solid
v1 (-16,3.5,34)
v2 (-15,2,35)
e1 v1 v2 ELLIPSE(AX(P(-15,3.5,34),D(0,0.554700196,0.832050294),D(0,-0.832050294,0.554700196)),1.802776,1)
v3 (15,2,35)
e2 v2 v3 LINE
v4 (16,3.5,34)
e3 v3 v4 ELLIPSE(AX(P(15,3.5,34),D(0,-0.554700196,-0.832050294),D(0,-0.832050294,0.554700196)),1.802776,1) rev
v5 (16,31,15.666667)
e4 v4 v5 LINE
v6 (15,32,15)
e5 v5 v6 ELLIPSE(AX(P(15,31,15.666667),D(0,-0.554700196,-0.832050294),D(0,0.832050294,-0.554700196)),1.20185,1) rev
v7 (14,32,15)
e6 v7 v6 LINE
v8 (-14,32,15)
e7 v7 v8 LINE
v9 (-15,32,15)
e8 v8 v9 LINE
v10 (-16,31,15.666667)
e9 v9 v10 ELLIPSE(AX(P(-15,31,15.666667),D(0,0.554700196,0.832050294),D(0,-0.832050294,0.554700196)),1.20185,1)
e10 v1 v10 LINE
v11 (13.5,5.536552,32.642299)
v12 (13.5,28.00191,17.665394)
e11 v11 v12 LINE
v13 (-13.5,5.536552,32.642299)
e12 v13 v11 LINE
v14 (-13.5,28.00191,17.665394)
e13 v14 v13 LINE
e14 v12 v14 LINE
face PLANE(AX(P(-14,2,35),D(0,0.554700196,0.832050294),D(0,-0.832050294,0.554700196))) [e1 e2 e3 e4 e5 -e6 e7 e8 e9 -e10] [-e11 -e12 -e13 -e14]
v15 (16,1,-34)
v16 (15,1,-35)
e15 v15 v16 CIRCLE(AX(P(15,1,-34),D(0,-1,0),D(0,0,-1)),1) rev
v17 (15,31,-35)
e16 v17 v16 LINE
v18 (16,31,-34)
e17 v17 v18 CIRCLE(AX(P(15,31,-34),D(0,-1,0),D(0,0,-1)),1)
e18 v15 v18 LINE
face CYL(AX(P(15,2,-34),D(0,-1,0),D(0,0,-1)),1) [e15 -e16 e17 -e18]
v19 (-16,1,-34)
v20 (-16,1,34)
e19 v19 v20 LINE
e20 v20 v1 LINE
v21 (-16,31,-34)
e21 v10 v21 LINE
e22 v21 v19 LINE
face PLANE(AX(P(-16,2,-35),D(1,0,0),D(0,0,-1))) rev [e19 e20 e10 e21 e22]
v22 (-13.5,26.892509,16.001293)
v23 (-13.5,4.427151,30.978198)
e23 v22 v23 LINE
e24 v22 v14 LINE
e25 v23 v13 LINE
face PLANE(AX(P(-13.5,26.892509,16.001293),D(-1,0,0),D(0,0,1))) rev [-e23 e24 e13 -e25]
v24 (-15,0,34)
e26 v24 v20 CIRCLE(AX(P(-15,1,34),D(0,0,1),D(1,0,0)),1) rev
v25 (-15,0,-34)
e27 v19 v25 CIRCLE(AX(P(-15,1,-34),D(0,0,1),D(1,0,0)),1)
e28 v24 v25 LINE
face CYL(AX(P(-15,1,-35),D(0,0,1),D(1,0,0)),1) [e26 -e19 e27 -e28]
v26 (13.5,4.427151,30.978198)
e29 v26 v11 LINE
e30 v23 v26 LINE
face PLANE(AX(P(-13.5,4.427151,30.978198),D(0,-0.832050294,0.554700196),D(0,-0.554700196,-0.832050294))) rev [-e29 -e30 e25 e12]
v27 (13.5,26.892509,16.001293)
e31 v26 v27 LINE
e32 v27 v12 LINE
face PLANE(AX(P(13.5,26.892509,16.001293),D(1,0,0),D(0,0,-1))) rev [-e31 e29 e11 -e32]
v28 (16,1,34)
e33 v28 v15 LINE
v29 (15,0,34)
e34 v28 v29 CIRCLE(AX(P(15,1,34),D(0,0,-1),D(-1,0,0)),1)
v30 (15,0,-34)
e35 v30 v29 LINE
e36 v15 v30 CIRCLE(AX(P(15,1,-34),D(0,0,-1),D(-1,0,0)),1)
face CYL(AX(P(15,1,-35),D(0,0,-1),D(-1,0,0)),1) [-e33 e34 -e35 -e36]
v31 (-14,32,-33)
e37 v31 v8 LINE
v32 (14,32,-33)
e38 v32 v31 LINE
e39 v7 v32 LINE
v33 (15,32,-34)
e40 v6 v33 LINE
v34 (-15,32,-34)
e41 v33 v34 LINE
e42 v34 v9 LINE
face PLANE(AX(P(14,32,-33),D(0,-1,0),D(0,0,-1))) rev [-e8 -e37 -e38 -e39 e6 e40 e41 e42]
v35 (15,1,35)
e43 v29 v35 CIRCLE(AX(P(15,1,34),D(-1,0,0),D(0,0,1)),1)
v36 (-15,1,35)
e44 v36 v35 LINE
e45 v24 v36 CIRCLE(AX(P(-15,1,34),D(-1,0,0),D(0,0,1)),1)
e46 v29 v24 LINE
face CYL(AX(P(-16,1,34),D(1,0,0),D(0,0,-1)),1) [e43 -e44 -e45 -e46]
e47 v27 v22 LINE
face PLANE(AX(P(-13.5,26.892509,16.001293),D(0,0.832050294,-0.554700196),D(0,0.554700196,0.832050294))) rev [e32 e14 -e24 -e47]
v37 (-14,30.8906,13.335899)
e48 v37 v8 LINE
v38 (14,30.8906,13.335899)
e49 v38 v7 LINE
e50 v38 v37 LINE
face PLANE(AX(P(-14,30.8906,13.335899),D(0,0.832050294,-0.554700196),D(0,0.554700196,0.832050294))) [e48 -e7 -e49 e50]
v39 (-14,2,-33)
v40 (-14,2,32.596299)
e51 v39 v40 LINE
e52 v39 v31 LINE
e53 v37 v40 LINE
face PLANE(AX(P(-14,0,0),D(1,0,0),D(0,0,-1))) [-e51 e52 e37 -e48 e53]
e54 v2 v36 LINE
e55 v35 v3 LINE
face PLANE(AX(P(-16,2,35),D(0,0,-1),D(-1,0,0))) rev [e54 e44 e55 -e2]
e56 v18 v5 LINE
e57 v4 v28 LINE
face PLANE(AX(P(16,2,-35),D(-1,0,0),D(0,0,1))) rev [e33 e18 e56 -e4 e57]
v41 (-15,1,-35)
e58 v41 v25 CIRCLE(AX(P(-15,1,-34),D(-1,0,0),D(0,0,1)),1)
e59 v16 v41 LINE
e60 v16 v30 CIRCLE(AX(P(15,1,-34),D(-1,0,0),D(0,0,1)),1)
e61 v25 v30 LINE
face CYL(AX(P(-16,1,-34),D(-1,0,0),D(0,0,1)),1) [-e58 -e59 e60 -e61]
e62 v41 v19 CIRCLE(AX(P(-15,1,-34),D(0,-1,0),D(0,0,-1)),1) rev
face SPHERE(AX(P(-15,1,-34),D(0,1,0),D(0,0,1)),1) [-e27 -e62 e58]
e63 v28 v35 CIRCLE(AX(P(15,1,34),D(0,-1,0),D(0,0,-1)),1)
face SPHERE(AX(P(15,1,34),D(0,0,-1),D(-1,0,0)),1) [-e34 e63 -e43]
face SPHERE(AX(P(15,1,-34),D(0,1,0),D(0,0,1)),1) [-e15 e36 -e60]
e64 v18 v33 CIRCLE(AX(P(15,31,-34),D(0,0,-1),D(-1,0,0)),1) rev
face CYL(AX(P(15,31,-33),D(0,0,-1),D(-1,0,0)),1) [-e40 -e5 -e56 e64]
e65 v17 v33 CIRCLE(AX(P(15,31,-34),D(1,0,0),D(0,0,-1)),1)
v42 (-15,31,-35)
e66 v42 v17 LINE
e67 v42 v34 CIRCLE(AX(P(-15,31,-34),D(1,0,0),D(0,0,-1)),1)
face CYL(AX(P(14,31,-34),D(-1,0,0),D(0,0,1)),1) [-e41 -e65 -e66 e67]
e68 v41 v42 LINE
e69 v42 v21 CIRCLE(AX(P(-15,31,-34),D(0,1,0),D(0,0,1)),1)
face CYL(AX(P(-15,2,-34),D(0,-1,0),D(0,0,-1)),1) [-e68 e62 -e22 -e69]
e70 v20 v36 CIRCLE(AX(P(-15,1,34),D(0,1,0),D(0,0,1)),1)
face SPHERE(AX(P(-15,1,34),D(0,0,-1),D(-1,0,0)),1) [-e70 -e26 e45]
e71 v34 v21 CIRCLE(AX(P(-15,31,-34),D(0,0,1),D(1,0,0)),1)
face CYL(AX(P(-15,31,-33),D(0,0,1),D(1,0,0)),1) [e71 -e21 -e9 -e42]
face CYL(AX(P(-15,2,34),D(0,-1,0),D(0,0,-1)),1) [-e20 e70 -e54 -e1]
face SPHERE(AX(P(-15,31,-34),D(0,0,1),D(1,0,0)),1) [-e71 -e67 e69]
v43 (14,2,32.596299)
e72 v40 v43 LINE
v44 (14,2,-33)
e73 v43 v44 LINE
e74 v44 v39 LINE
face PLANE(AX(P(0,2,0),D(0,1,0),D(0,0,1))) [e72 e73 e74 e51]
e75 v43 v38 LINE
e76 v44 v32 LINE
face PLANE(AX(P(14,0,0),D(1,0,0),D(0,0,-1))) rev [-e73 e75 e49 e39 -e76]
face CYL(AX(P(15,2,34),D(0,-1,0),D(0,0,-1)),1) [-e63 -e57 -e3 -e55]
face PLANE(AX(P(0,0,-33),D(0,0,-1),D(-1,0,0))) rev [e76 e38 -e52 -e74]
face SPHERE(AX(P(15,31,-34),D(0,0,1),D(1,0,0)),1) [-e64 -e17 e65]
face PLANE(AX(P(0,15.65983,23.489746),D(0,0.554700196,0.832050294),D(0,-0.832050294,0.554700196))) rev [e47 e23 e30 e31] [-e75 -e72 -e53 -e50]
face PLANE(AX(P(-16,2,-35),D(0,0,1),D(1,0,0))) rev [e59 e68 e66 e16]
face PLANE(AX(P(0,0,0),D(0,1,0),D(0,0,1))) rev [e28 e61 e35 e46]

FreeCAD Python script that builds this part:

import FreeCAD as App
import Part
import Sketcher
Q = App.Units.Quantity


def edges_at(feature, points):
    """Names of the edges that pass closest to the given points."""
    edges = feature.Shape.Edges
    near = lambda p: min(range(len(edges)), key=lambda i: edges[i].distToShape(Part.Vertex(*p))[0])
    return sorted({f"Edge{near(p) + 1}" for p in points})

doc = App.newDocument("Part")
body = doc.addObject("PartDesign::Body", "Body")

# Sketch on XZ plane
sketch1 = body.newObject("Sketcher::SketchObject", "Sketch")
sketch1.AttachmentSupport = (doc.getObject("XZ_Plane"), [""])
sketch1.MapMode = "FlatFace"
sketch1.addGeometry([
    Part.LineSegment(App.Vector(-16, -35, 0), App.Vector(-16, 35, 0)),
    Part.LineSegment(App.Vector(-16, 35, 0), App.Vector(16, 35, 0)),
    Part.LineSegment(App.Vector(16, 35, 0), App.Vector(16, -35, 0)),
    Part.LineSegment(App.Vector(16, -35, 0), App.Vector(-16, -35, 0)),
], False)
sketch1.addConstraint([
    Sketcher.Constraint("Coincident", 0, 2, 1, 1),
    Sketcher.Constraint("Coincident", 1, 2, 2, 1),
    Sketcher.Constraint("Coincident", 2, 2, 3, 1),
    Sketcher.Constraint("Coincident", 3, 2, 0, 1),
    Sketcher.Constraint("Vertical", 0),
    Sketcher.Constraint("Horizontal", 1),
    Sketcher.Constraint("Vertical", 2),
    Sketcher.Constraint("Horizontal", 3),
    Sketcher.Constraint("Symmetric", 0, 2, 2, 2, -1, 1),
    Sketcher.Constraint("DistanceX", 1, 1, 1, 2, Q("32 mm")),
    Sketcher.Constraint("DistanceY", 0, 1, 0, 2, Q("70 mm")),
])
pad1 = body.newObject("PartDesign::Pad", "Pad")
pad1.Profile = sketch1
pad1.Length = 2
pad1.Reversed = True
body2 = doc.addObject("PartDesign::Body", "Body001")

# Sketch on YZ plane
sketch2 = body2.newObject("Sketcher::SketchObject", "Sketch001")
sketch2.AttachmentSupport = (doc.getObject("YZ_Plane001"), [""])
sketch2.MapMode = "FlatFace"
sketch2.AttachmentOffset = App.Placement(App.Vector(0, 0, -16), App.Rotation())
sketch2.addGeometry([
    Part.LineSegment(App.Vector(2, 35, 0), App.Vector(32, 15, 0)),
    Part.LineSegment(App.Vector(32, 15, 0), App.Vector(32, -35, 0)),
    Part.LineSegment(App.Vector(32, -35, 0), App.Vector(2, -35, 0)),
    Part.LineSegment(App.Vector(2, -35, 0), App.Vector(2, 35, 0)),
], False)
sketch2.addConstraint([
    Sketcher.Constraint("Coincident", 0, 2, 1, 1),
    Sketcher.Constraint("Coincident", 1, 2, 2, 1),
    Sketcher.Constraint("Coincident", 2, 2, 3, 1),
    Sketcher.Constraint("Coincident", 3, 2, 0, 1),
    Sketcher.Constraint("Vertical", 1),
    Sketcher.Constraint("Horizontal", 2),
    Sketcher.Constraint("Vertical", 3),
    Sketcher.Constraint("DistanceX", 2, 2, 2, 1, Q("30 mm")),
    Sketcher.Constraint("DistanceY", 1, 2, 1, 1, Q("50 mm")),
    Sketcher.Constraint("DistanceY", 3, 1, 3, 2, Q("70 mm")),
    Sketcher.Constraint("DistanceX", -1, 1, 0, 2, Q("32 mm")),
    Sketcher.Constraint("DistanceY", -1, 1, 0, 2, Q("15 mm")),
])
pad2 = body2.newObject("PartDesign::Pad", "Pad001")
pad2.Profile = sketch2
pad2.Length = 2
body3 = doc.addObject("PartDesign::Body", "Body002")

# Sketch on YZ plane
sketch3 = body3.newObject("Sketcher::SketchObject", "Sketch002")
sketch3.AttachmentSupport = (doc.getObject("YZ_Plane002"), [""])
sketch3.MapMode = "FlatFace"
sketch3.AttachmentOffset = App.Placement(App.Vector(0, 0, 16), App.Rotation())
sketch3.addGeometry([
    Part.LineSegment(App.Vector(32, 15, 0), App.Vector(2, 35, 0)),
    Part.LineSegment(App.Vector(2, 35, 0), App.Vector(2, -35, 0)),
    Part.LineSegment(App.Vector(2, -35, 0), App.Vector(32, -35, 0)),
    Part.LineSegment(App.Vector(32, -35, 0), App.Vector(32, 15, 0)),
], False)
sketch3.addConstraint([
    Sketcher.Constraint("Coincident", 0, 2, 1, 1),
    Sketcher.Constraint("Coincident", 1, 2, 2, 1),
    Sketcher.Constraint("Coincident", 2, 2, 3, 1),
    Sketcher.Constraint("Coincident", 3, 2, 0, 1),
    Sketcher.Constraint("Vertical", 1),
    Sketcher.Constraint("Horizontal", 2),
    Sketcher.Constraint("Vertical", 3),
    Sketcher.Constraint("DistanceX", 2, 1, 2, 2, Q("30 mm")),
    Sketcher.Constraint("DistanceY", 1, 2, 1, 1, Q("70 mm")),
    Sketcher.Constraint("DistanceY", 3, 1, 3, 2, Q("50 mm")),
    Sketcher.Constraint("DistanceX", -1, 1, 0, 2, Q("2 mm")),
    Sketcher.Constraint("DistanceY", -1, 1, 0, 2, Q("35 mm")),
])
pad3 = body3.newObject("PartDesign::Pad", "Pad002")
pad3.Profile = sketch3
pad3.Length = 2
pad3.Reversed = True
doc.recompute()

boolean = body.newObject("PartDesign::Boolean", "Boolean")
boolean.Type = "Fuse"
boolean.addObjects([body2])
doc.recompute()

boolean2 = body.newObject("PartDesign::Boolean", "Boolean001")
boolean2.Type = "Fuse"
boolean2.addObjects([body3])

# Sketch on XY plane
sketch4 = body.newObject("Sketcher::SketchObject", "Sketch003")
sketch4.AttachmentSupport = (doc.getObject("XY_Plane"), [""])
sketch4.MapMode = "FlatFace"
sketch4.AttachmentOffset = App.Placement(App.Vector(0, 0, -35), App.Rotation())
sketch4.addGeometry([
    Part.LineSegment(App.Vector(14, 32, 0), App.Vector(14, 2, 0)),
    Part.LineSegment(App.Vector(14, 2, 0), App.Vector(-14, 2, 0)),
    Part.LineSegment(App.Vector(-14, 2, 0), App.Vector(-14, 32, 0)),
    Part.LineSegment(App.Vector(-14, 32, 0), App.Vector(14, 32, 0)),
], False)
sketch4.addConstraint([
    Sketcher.Constraint("Coincident", 0, 2, 1, 1),
    Sketcher.Constraint("Coincident", 1, 2, 2, 1),
    Sketcher.Constraint("Coincident", 2, 2, 3, 1),
    Sketcher.Constraint("Coincident", 3, 2, 0, 1),
    Sketcher.Constraint("Vertical", 0),
    Sketcher.Constraint("Horizontal", 1),
    Sketcher.Constraint("Vertical", 2),
    Sketcher.Constraint("Horizontal", 3),
    Sketcher.Constraint("DistanceX", 1, 2, 1, 1, Q("28 mm")),
    Sketcher.Constraint("DistanceY", 0, 2, 0, 1, Q("30 mm")),
    Sketcher.Constraint("DistanceX", -1, 1, 0, 2, Q("14 mm")),
    Sketcher.Constraint("DistanceY", -1, 1, 0, 2, Q("2 mm")),
])
pad4 = body.newObject("PartDesign::Pad", "Pad003")
pad4.Profile = sketch4
pad4.Length = 2
doc.recompute()

fillet = body.newObject("PartDesign::Fillet", "Fillet")
fillet.Base = (pad4, edges_at(pad4, [(16, 32, -10)]))
fillet.Radius = 1
doc.recompute()

fillet2 = body.newObject("PartDesign::Fillet", "Fillet001")
fillet2.Base = (fillet, edges_at(fillet, [(-16, 32, -10)]))
fillet2.Radius = 1
doc.recompute()

fillet3 = body.newObject("PartDesign::Fillet", "Fillet002")
fillet3.Base = (fillet2, edges_at(fillet2, [
    (0, 32, -35),
    (16, 15.5, -35),
    (15.707, 31.707, -35),
    (-16, 15.5, -35),
    (-15.707, 31.707, -35),
]))
fillet3.Radius = 1
doc.recompute()

fillet4 = body.newObject("PartDesign::Fillet", "Fillet003")
fillet4.Base = (fillet3, edges_at(fillet3, [
    (0, 0, -35),
    (16, 0, 0.5),
    (-16, 0, 0.5),
    (-15.707, 0, -34.707),
    (15.707, 0, -34.707),
]))
fillet4.Radius = 1
doc.recompute()

fillet5 = body.newObject("PartDesign::Fillet", "Fillet004")
fillet5.Base = (fillet4, edges_at(fillet4, [
    (16, 1.5, 35),
    (-16, 1.5, 35),
    (0, 0, 35),
    (15.707, 0.293, 35),
    (-15.707, 0.293, 35),
]))
fillet5.Radius = 1

# Sketch on an angled plane
sketch5 = body.newObject("Sketcher::SketchObject", "Sketch004")
sketch5.Placement = App.Placement(App.Vector(0, 16.769231, 25.153846), App.Rotation(App.Vector(1, 0, 0), App.Vector(0, 0.832050294, -0.554700196), App.Vector(0, 0.554700196, 0.832050294), "ZXY"))
sketch5.addGeometry([
    Part.LineSegment(App.Vector(-14, 18, 0), App.Vector(-14, -18, 0)),  # 0
    Part.LineSegment(App.Vector(-14, -18, 0), App.Vector(14, -18, 0)),  # 1
    Part.LineSegment(App.Vector(14, -18, 0), App.Vector(14, 18, 0)),  # 2
    Part.LineSegment(App.Vector(14, 18, 0), App.Vector(-14, 18, 0)),  # 3
    Part.LineSegment(App.Vector(14, -13, 0), App.Vector(-14, -13, 0)),  # 4
    Part.LineSegment(App.Vector(-14, -13, 0), App.Vector(-14, 13, 0)),  # 5
    Part.LineSegment(App.Vector(-14, 13, 0), App.Vector(14, 13, 0)),  # 6
    Part.LineSegment(App.Vector(14, 13, 0), App.Vector(14, -13, 0)),  # 7
], False)
sketch5.addConstraint([
    Sketcher.Constraint("Coincident", 0, 2, 1, 1),
    Sketcher.Constraint("Coincident", 1, 2, 2, 1),
    Sketcher.Constraint("Coincident", 2, 2, 3, 1),
    Sketcher.Constraint("Coincident", 3, 2, 0, 1),
    Sketcher.Constraint("Coincident", 4, 2, 5, 1),
    Sketcher.Constraint("Coincident", 5, 2, 6, 1),
    Sketcher.Constraint("Coincident", 6, 2, 7, 1),
    Sketcher.Constraint("Coincident", 7, 2, 4, 1),
    Sketcher.Constraint("Vertical", 0),
    Sketcher.Constraint("Horizontal", 1),
    Sketcher.Constraint("Vertical", 2),
    Sketcher.Constraint("Horizontal", 3),
    Sketcher.Constraint("Horizontal", 4),
    Sketcher.Constraint("Vertical", 5),
    Sketcher.Constraint("Horizontal", 6),
    Sketcher.Constraint("Vertical", 7),
    Sketcher.Constraint("Symmetric", 4, 2, 6, 2, -1, 1),
    Sketcher.Constraint("Equal", 6, 5),
    Sketcher.Constraint("DistanceX", 1, 1, 1, 2, Q("28 mm")),
    Sketcher.Constraint("DistanceX", 4, 2, 4, 1, Q("27 mm")),
    Sketcher.Constraint("DistanceX", 0, 2, -1, 1, Q("14 mm")),
    Sketcher.Constraint("DistanceY", 0, 2, 0, 1, Q("36.055513 mm")),
    Sketcher.Constraint("DistanceY", 0, 2, -1, 1, Q("17.750406 mm")),
])
pad5 = body.newObject("PartDesign::Pad", "Pad004")
pad5.Profile = sketch5
pad5.Length = 2
pad5.Reversed = True

doc.recompute()
